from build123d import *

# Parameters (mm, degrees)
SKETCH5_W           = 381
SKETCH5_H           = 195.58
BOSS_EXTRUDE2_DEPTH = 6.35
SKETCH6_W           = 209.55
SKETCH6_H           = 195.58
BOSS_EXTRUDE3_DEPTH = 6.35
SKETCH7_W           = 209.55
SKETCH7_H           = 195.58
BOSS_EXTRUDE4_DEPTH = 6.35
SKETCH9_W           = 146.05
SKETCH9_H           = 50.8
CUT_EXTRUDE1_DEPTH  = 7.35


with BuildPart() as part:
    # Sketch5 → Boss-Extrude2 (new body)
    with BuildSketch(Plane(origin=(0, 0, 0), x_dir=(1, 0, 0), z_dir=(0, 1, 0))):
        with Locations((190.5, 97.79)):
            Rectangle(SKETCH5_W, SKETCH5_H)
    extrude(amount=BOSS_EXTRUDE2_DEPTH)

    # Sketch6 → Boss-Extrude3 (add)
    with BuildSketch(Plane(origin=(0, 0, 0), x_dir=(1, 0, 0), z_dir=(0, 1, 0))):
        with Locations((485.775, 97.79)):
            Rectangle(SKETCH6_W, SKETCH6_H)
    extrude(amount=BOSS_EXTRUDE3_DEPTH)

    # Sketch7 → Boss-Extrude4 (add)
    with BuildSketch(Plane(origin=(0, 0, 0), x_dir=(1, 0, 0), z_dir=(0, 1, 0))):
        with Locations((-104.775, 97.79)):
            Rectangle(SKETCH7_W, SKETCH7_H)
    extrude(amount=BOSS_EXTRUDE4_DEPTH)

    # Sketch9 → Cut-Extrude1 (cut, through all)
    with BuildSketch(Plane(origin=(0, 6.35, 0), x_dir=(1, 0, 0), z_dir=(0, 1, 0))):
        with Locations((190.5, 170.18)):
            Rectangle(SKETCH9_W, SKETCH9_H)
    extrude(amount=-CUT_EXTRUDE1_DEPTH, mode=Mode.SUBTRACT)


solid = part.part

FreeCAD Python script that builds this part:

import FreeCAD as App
import Part
import Sketcher
Q = App.Units.Quantity


def add_polygon(sketch, points):
    """Adds a closed chain of lines whose ends are joined by coincident constraints."""
    first, n = sketch.GeometryCount, len(points)
    for a, b in zip(points, points[1:] + points[:1]):
        sketch.addGeometry(Part.LineSegment(App.Vector(*a, 0), App.Vector(*b, 0)), False)
    for i in range(n):
        sketch.addConstraint(Sketcher.Constraint("Coincident", first + i, 2, first + (i + 1) % n, 1))

doc = App.newDocument("Part")
body = doc.addObject("PartDesign::Body", "Body")

sketch1 = doc.addObject("Sketcher::SketchObject", "Sketch")
body.addObject(sketch1)
sketch1.AttachmentSupport = (doc.XZ_Plane, [""])
sketch1.MapMode = "FlatFace"
add_polygon(sketch1, [(0, -195.58), (0, 0), (381, 0), (381, -195.58)])
sketch1.addConstraint([
    Sketcher.Constraint("Vertical", 0),
    Sketcher.Constraint("Horizontal", 1),
    Sketcher.Constraint("Vertical", 2),
    Sketcher.Constraint("Horizontal", 3),
    Sketcher.Constraint("Coincident", 0, 2, -1, 1),
    Sketcher.Constraint("DistanceX", 1, 1, 1, 2, Q("15 in")),
    Sketcher.Constraint("DistanceY", 0, 1, 0, 2, Q("7.7 in")),
])
pad1 = doc.addObject("PartDesign::Pad", "Pad")
body.addObject(pad1)
pad1.Profile = sketch1
pad1.Length = Q("0.25 in")
pad1.Reversed = True

sketch2 = doc.addObject("Sketcher::SketchObject", "Sketch001")
body.addObject(sketch2)
sketch2.AttachmentSupport = (doc.XZ_Plane, [""])
sketch2.MapMode = "FlatFace"
add_polygon(sketch2, [(381, -195.58), (381, 0), (590.55, 0), (590.55, -195.58)])
sketch2.addConstraint([
    Sketcher.Constraint("Vertical", 0),
    Sketcher.Constraint("Horizontal", 1),
    Sketcher.Constraint("Vertical", 2),
    Sketcher.Constraint("Horizontal", 3),
    Sketcher.Constraint("PointOnObject", 0, 2, -1),
    Sketcher.Constraint("DistanceY", 0, 1, 0, 2, Q("7.7 in")),
    Sketcher.Constraint("DistanceX", -1, 1, 0, 2, Q("15 in")),
    Sketcher.Constraint("DistanceX", 1, 1, 1, 2, Q("8.25 in")),
])
pad2 = doc.addObject("PartDesign::Pad", "Pad001")
body.addObject(pad2)
pad2.Profile = sketch2
pad2.Length = Q("0.25 in")
pad2.Reversed = True

sketch3 = doc.addObject("Sketcher::SketchObject", "Sketch002")
body.addObject(sketch3)
sketch3.AttachmentSupport = (doc.XZ_Plane, [""])
sketch3.MapMode = "FlatFace"
add_polygon(sketch3, [(-209.55, -195.58), (-209.55, 0), (0, 0), (0, -195.58)])
sketch3.addConstraint([
    Sketcher.Constraint("Vertical", 0),
    Sketcher.Constraint("Horizontal", 1),
    Sketcher.Constraint("Vertical", 2),
    Sketcher.Constraint("Horizontal", 3),
    Sketcher.Constraint("Coincident", 1, 2, -1, 1),
    Sketcher.Constraint("DistanceY", 0, 1, 0, 2, Q("7.7 in")),
    Sketcher.Constraint("DistanceX", 1, 1, 1, 2, Q("8.25 in")),
])
pad3 = doc.addObject("PartDesign::Pad", "Pad002")
body.addObject(pad3)
pad3.Profile = sketch3
pad3.Length = Q("0.25 in")
pad3.Reversed = True

sketch4 = doc.addObject("Sketcher::SketchObject", "Sketch003")
body.addObject(sketch4)
sketch4.AttachmentSupport = (doc.XZ_Plane, [""])
sketch4.MapMode = "FlatFace"
sketch4.AttachmentOffset = App.Placement(App.Vector(0, 0, -0.25 * 25.4), App.Rotation())
add_polygon(sketch4, [(117.475, -195.58), (117.475, -144.78), (263.525, -144.78), (263.525, -195.58)])
sketch4.addConstraint([
    Sketcher.Constraint("Vertical", 0),
    Sketcher.Constraint("Horizontal", 1),
    Sketcher.Constraint("Vertical", 2),
    Sketcher.Constraint("Horizontal", 3),
    Sketcher.Constraint("DistanceY", 0, 1, 0, 2, Q("2 in")),
    Sketcher.Constraint("DistanceX", 1, 1, 1, 2, Q("5.75 in")),
    Sketcher.Constraint("DistanceY", 0, 2, -1, 1, Q("5.7 in")),
    Sketcher.Constraint("DistanceX", -1, 1, 0, 2, Q("4.625 in")),
])
pocket1 = doc.addObject("PartDesign::Pocket", "Pocket")
body.addObject(pocket1)
pocket1.Profile = sketch4
pocket1.Type = "ThroughAll"
pocket1.Reversed = True

doc.recompute()
